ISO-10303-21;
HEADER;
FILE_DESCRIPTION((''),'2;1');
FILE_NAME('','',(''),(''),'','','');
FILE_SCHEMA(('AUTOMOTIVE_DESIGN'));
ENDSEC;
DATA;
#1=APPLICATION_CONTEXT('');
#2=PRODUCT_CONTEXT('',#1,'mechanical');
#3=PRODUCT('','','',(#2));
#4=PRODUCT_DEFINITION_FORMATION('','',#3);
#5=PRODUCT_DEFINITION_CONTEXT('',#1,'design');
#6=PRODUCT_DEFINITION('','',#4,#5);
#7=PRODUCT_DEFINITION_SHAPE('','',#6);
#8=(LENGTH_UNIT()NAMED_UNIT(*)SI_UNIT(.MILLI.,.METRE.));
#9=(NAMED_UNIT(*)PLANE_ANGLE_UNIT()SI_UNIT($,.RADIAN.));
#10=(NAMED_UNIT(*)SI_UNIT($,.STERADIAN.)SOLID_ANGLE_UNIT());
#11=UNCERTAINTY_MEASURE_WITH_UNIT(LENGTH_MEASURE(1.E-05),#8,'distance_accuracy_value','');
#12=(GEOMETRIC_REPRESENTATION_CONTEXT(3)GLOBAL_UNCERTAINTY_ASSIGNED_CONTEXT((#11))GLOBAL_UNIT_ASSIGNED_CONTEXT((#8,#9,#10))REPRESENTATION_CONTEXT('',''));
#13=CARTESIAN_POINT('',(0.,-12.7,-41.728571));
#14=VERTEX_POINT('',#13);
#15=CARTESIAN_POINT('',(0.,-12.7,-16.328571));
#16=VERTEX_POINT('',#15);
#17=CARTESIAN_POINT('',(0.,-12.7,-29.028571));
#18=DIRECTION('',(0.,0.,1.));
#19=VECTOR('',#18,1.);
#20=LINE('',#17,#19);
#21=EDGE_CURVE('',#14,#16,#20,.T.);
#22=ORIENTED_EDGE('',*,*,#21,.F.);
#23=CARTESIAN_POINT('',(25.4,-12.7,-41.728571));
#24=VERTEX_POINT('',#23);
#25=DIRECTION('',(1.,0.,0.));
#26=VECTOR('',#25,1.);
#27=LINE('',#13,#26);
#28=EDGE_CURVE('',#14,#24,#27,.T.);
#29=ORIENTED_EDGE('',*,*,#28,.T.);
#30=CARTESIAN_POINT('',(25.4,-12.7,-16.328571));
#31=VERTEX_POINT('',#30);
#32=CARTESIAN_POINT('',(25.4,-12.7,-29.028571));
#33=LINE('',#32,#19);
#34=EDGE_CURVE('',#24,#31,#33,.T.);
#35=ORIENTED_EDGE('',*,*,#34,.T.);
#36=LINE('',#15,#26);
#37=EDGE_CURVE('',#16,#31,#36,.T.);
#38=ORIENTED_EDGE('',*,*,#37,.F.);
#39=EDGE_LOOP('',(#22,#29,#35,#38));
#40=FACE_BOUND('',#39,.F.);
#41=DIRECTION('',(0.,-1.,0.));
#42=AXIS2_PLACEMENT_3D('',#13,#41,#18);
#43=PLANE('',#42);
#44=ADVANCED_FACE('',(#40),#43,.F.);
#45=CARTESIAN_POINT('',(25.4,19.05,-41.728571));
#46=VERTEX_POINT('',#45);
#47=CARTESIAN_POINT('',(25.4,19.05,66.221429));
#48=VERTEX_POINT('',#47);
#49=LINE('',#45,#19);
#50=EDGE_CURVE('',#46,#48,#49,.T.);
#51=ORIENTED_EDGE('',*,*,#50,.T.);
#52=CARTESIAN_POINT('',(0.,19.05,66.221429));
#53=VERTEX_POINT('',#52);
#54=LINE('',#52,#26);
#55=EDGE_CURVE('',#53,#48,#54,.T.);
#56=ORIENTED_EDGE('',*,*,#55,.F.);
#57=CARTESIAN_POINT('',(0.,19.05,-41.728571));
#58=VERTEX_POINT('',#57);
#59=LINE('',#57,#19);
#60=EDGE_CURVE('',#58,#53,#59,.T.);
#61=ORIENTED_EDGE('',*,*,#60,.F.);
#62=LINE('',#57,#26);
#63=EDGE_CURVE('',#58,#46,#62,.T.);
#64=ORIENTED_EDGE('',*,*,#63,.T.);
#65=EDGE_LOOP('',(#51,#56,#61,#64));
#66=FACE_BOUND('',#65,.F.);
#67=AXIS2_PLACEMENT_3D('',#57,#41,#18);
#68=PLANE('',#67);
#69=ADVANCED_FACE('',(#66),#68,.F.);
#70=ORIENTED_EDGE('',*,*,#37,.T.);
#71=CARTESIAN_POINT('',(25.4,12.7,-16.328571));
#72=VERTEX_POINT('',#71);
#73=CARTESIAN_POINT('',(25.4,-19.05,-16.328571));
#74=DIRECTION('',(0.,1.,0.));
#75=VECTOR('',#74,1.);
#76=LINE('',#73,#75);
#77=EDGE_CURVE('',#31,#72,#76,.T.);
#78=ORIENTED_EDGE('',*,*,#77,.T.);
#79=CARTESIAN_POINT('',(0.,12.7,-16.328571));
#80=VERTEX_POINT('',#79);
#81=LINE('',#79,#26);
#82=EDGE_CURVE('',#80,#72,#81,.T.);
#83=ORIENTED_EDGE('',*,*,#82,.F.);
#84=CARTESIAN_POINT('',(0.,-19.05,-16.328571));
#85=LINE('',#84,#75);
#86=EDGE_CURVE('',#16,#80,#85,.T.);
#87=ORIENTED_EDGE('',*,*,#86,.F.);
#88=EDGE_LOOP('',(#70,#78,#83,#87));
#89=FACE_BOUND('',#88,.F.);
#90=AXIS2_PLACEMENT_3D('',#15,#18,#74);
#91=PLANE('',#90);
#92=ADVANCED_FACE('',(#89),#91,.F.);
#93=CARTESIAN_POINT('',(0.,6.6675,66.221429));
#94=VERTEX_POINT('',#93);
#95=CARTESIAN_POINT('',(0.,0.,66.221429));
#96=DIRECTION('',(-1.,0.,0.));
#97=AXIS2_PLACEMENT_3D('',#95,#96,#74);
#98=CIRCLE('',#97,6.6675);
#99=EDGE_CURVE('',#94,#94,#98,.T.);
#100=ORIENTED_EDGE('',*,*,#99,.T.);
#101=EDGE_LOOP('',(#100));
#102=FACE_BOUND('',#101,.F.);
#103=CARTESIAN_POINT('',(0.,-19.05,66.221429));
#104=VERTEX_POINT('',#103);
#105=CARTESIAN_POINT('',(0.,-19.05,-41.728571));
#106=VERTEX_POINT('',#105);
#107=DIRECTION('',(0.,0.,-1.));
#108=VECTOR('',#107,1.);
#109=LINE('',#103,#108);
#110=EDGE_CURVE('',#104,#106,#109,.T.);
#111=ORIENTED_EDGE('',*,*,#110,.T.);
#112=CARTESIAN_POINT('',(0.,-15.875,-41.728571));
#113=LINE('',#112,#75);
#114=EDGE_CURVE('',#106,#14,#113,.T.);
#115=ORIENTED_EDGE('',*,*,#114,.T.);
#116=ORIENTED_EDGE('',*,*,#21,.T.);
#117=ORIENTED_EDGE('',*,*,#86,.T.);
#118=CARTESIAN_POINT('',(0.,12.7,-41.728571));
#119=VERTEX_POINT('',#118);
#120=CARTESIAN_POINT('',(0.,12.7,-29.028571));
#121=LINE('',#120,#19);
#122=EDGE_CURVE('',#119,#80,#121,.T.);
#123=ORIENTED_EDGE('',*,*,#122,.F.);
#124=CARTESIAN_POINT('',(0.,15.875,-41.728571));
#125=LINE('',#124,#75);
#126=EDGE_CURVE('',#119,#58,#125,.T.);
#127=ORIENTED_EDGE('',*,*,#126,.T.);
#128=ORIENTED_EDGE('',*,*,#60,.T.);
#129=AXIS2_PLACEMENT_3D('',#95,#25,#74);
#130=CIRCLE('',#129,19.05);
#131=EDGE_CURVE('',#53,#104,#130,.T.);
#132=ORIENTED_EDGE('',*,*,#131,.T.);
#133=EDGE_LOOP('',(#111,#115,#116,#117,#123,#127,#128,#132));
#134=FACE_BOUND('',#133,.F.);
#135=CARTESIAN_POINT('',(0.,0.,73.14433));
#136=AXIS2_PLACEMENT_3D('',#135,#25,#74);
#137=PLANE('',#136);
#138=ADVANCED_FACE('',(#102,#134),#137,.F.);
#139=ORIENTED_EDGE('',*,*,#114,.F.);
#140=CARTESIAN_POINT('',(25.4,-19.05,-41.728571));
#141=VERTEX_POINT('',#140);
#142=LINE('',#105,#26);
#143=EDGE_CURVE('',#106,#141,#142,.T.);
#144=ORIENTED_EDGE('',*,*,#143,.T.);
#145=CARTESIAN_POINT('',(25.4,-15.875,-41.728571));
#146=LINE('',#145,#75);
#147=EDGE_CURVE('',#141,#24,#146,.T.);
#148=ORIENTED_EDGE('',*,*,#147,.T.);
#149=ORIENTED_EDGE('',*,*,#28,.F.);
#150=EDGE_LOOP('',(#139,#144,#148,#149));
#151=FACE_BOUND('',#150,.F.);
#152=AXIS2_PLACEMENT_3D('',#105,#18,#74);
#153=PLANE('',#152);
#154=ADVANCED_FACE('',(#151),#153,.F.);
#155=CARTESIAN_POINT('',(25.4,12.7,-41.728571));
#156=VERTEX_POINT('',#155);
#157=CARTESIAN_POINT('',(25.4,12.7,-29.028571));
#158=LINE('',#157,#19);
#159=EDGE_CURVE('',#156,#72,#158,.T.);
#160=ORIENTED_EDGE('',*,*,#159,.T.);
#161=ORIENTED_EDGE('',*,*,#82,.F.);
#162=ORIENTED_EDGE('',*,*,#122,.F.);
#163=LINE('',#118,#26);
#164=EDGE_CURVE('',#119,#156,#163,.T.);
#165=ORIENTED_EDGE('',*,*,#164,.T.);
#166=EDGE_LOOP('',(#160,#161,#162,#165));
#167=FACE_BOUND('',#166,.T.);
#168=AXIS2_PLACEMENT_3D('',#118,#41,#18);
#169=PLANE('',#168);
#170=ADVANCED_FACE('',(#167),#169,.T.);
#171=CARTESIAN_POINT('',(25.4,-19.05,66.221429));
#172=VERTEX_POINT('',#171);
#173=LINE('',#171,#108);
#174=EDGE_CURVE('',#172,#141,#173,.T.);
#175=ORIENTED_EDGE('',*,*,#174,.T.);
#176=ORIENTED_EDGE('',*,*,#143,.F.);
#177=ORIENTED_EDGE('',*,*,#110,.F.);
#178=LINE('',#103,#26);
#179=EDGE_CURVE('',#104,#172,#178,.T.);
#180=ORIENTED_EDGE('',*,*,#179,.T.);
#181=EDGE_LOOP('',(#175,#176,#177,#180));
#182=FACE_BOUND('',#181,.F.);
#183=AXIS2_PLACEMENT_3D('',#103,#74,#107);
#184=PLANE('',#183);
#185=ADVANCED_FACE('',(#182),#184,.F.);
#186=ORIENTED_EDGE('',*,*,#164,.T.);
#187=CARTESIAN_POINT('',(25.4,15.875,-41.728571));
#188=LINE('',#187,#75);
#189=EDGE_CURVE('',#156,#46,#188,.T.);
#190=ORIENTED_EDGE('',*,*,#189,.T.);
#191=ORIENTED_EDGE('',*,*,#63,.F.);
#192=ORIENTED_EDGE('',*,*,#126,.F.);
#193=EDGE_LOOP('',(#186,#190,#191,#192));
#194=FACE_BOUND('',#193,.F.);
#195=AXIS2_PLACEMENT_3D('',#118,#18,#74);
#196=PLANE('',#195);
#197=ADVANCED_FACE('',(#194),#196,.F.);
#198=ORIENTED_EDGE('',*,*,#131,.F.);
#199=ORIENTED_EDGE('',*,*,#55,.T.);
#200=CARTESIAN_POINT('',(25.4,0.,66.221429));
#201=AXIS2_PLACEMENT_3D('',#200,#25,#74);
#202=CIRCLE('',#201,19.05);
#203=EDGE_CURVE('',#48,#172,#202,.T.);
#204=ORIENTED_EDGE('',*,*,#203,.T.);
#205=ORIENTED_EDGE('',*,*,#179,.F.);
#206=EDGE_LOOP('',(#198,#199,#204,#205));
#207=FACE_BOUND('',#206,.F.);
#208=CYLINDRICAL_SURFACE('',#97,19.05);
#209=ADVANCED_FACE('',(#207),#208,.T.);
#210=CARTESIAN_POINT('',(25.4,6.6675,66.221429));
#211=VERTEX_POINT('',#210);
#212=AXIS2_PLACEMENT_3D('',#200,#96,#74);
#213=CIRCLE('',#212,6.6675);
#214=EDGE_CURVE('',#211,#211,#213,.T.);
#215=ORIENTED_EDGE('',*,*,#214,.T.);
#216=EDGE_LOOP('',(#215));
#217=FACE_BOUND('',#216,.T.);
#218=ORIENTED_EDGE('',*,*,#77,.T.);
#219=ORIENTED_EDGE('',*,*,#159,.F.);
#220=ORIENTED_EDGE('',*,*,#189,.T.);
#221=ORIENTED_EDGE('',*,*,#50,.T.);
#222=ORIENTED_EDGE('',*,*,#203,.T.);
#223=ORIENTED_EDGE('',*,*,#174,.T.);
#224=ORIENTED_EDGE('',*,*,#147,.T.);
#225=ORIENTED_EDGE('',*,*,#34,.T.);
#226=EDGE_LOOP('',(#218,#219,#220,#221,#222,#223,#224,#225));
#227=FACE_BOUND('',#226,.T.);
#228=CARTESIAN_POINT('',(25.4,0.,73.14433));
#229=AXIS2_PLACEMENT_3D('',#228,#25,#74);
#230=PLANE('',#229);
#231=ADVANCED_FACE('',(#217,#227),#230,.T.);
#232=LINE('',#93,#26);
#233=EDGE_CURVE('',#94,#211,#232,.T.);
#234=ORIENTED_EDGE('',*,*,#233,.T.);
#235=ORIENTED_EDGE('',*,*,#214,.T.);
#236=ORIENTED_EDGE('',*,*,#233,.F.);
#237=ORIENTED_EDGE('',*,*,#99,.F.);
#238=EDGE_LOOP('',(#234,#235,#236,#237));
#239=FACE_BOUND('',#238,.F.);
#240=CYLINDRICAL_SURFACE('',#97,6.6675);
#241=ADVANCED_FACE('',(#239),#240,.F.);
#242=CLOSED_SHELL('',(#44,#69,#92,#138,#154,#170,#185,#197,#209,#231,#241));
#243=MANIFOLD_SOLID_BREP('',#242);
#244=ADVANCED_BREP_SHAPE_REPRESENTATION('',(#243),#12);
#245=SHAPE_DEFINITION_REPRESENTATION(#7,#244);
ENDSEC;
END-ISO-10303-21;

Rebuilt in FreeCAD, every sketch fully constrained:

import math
import FreeCAD as App
import Part
import Sketcher

V = App.Vector
Q = App.Units.Quantity

doc = App.newDocument("Part")
body = doc.addObject("PartDesign::Body", "Body")

# Sketch on YZ plane
sketch1 = body.newObject("Sketcher::SketchObject", "Sketch")
sketch1.AttachmentSupport = (doc.getObject("YZ_Plane"), [""])
sketch1.MapMode = "FlatFace"
sketch1.addGeometry(Part.ArcOfCircle(Part.Circle(V(0, 66, 0), V(0, 0, 1), 19), math.radians(0), math.radians(180)), False)
sketch1.addGeometry(Part.LineSegment(V(-19, 66, 0), V(-19, -42, 0)), False)
sketch1.addGeometry(Part.LineSegment(V(-19, -42, 0), V(-13, -42, 0)), False)
sketch1.addGeometry(Part.LineSegment(V(-13, -42, 0), V(-13, -16, 0)), False)
sketch1.addGeometry(Part.LineSegment(V(-13, -16, 0), V(13, -16, 0)), False)
sketch1.addGeometry(Part.LineSegment(V(13, -16, 0), V(13, -42, 0)), False)
sketch1.addGeometry(Part.LineSegment(V(13, -42, 0), V(19, -42, 0)), False)
sketch1.addGeometry(Part.LineSegment(V(19, -42, 0), V(19, 66, 0)), False)
sketch1.addGeometry(Part.Circle(V(0, 66, 0), V(0, 0, 1), 7), False)
sketch1.addConstraint(Sketcher.Constraint("Tangent", 0, 2, 1, 1))
sketch1.addConstraint(Sketcher.Constraint("Coincident", 1, 2, 2, 1))
sketch1.addConstraint(Sketcher.Constraint("Coincident", 2, 2, 3, 1))
sketch1.addConstraint(Sketcher.Constraint("Coincident", 3, 2, 4, 1))
sketch1.addConstraint(Sketcher.Constraint("Coincident", 4, 2, 5, 1))
sketch1.addConstraint(Sketcher.Constraint("Coincident", 5, 2, 6, 1))
sketch1.addConstraint(Sketcher.Constraint("Coincident", 6, 2, 7, 1))
sketch1.addConstraint(Sketcher.Constraint("Tangent", 7, 2, 0, 1))
sketch1.addConstraint(Sketcher.Constraint("Vertical", 1))
sketch1.addConstraint(Sketcher.Constraint("Horizontal", 2))
sketch1.addConstraint(Sketcher.Constraint("Vertical", 3))
sketch1.addConstraint(Sketcher.Constraint("Horizontal", 4))
sketch1.addConstraint(Sketcher.Constraint("Vertical", 5))
sketch1.addConstraint(Sketcher.Constraint("Horizontal", 6))
sketch1.addConstraint(Sketcher.Constraint("Vertical", 7))
sketch1.addConstraint(Sketcher.Constraint("Coincident", 8, 3, 0, 3))
sketch1.addConstraint(Sketcher.Constraint("Symmetric", 2, 2, 5, 2, -2))
sketch1.addConstraint(Sketcher.Constraint("PointOnObject", 0, 3, -2))
sketch1.addConstraint(Sketcher.Constraint("Equal", 4, 3))
sketch1.addConstraint(Sketcher.Constraint("DistanceX", 4, 1, 4, 2, Q("1 in")))
sketch1.addConstraint(Sketcher.Constraint("Radius", 0, Q("0.75 in")))
sketch1.addConstraint(Sketcher.Constraint("Diameter", 8, Q("0.525 in")))
sketch1.addConstraint(Sketcher.Constraint("DistanceY", 1, 2, 1, 1, Q("4.25 in")))
sketch1.addConstraint(Sketcher.Constraint("DistanceY", -1, 1, 0, 3, Q("66.221429 mm")))
pad1 = body.newObject("PartDesign::Pad", "Pad")
pad1.Profile = sketch1
pad1.Length = Q("1 in")

doc.recompute()
